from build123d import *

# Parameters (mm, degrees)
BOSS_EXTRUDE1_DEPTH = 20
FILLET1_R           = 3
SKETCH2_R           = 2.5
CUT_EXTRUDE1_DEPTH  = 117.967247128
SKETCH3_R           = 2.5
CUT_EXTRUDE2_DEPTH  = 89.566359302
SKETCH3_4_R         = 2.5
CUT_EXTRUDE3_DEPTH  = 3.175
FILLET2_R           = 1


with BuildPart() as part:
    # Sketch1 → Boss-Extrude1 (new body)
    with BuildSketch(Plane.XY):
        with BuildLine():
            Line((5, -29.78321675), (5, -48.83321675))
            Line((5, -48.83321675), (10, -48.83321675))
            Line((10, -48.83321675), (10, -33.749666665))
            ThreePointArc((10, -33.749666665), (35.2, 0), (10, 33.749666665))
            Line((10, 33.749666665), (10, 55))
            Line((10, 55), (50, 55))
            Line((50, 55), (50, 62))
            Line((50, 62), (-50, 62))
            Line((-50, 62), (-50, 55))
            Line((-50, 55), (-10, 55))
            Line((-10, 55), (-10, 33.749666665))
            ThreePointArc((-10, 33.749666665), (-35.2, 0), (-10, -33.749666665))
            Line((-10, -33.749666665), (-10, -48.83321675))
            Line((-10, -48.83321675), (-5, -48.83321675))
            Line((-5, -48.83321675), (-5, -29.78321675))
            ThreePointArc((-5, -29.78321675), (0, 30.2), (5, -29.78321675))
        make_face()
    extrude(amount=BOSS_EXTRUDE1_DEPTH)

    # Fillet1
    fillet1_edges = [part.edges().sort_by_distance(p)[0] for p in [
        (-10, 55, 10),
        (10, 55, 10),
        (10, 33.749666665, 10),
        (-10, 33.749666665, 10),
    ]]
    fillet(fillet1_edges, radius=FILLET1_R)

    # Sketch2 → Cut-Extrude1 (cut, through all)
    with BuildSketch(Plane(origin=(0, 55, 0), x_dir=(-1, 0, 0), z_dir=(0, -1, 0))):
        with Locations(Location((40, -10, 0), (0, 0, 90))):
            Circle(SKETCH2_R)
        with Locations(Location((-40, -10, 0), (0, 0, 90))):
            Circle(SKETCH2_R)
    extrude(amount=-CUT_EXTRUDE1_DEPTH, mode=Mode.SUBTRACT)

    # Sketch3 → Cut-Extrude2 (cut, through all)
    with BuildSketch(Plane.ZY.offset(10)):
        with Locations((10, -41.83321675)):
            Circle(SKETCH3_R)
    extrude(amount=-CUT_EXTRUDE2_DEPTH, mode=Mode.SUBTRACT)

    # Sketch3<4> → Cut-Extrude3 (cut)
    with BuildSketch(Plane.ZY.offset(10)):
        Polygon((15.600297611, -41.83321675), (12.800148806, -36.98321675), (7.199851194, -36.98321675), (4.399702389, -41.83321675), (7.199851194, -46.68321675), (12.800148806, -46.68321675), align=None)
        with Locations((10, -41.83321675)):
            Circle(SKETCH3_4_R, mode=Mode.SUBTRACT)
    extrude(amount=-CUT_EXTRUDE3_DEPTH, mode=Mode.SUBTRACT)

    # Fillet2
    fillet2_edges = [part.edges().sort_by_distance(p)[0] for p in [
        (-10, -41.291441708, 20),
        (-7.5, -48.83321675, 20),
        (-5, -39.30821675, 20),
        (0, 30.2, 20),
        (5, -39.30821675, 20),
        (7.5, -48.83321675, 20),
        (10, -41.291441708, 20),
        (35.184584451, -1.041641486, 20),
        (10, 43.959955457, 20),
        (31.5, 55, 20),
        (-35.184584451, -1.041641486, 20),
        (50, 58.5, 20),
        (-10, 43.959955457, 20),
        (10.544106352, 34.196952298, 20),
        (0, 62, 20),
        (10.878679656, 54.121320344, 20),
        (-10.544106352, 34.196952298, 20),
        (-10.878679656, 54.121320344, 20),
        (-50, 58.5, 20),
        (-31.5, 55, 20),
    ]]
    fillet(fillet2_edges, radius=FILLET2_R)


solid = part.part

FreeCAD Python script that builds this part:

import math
import FreeCAD as App
import Part
import Sketcher

V = App.Vector
Q = App.Units.Quantity


def edges_at(feature, points):
    """Names of the edges that pass closest to the given points."""
    edges = feature.Shape.Edges
    near = lambda p: min(range(len(edges)), key=lambda i: edges[i].distToShape(Part.Vertex(*p))[0])
    return sorted({f"Edge{near(p) + 1}" for p in points})

doc = App.newDocument("Part")
params = doc.addObject("Spreadsheet::Sheet", "Params")
for row, (alias, value) in enumerate([
    ("sketch1_radius", "35.2 mm"),
    ("sketch1_radius2", "30.2 mm"),
    ("sketch1_width", "5 mm"),
    ("sketch1_width2", "40 mm"),
    ("sketch1_width3", "100 mm"),
    ("pad1_length", "20 mm"),
    ("fillet_radius", "3 mm"),
    ("sketch2_diameter", "5 mm"),
    ("sketch3_diameter", "5 mm"),
    ("sketch4_diameter", "5 mm"),
    ("pocket3_length", "3.175 mm"),
    ("fillet2_radius", "1 mm"),
], start=1):
    params.set(f"A{row}", alias)
    params.set(f"B{row}", "=" + value)
    params.setAlias(f"B{row}", alias)

body = doc.addObject("PartDesign::Body", "Body")

sketch1 = body.newObject("Sketcher::SketchObject", "Sketch")
sketch1.AttachmentSupport = (doc.getObject("XY_Plane"), [""])
sketch1.MapMode = "FlatFace"
sketch1.addGeometry([
    Part.LineSegment(V(5, -30, 0), V(5, -49, 0)),
    Part.LineSegment(V(5, -49, 0), V(10, -49, 0)),
    Part.LineSegment(V(10, -49, 0), V(10, -34, 0)),
    Part.ArcOfCircle(Part.Circle(V(0, 0, 0), V(0, 0, 1), 35), math.radians(-73), math.radians(73)),
    Part.LineSegment(V(10, 34, 0), V(10, 55, 0)),
    Part.LineSegment(V(10, 55, 0), V(50, 55, 0)),
    Part.LineSegment(V(50, 55, 0), V(50, 62, 0)),
    Part.LineSegment(V(50, 62, 0), V(-50, 62, 0)),
    Part.LineSegment(V(-50, 62, 0), V(-50, 55, 0)),
    Part.LineSegment(V(-50, 55, 0), V(-10, 55, 0)),
    Part.LineSegment(V(-10, 55, 0), V(-10, 34, 0)),
    Part.ArcOfCircle(Part.Circle(V(0, 0, 0), V(0, 0, 1), 35), math.radians(107), math.radians(253)),
    Part.LineSegment(V(-10, -34, 0), V(-10, -49, 0)),
    Part.LineSegment(V(-10, -49, 0), V(-5, -49, 0)),
    Part.LineSegment(V(-5, -49, 0), V(-5, -30, 0)),
    Part.ArcOfCircle(Part.Circle(V(0, 0, 0), V(0, 0, 1), 30), math.radians(-80), math.radians(260)),
], False)
sketch1.addConstraint([
    Sketcher.Constraint("Coincident", 0, 2, 1, 1),
    Sketcher.Constraint("Coincident", 1, 2, 2, 1),
    Sketcher.Constraint("Coincident", 2, 2, 3, 1),
    Sketcher.Constraint("Coincident", 3, 2, 4, 1),
    Sketcher.Constraint("Coincident", 4, 2, 5, 1),
    Sketcher.Constraint("Coincident", 5, 2, 6, 1),
    Sketcher.Constraint("Coincident", 6, 2, 7, 1),
    Sketcher.Constraint("Coincident", 7, 2, 8, 1),
    Sketcher.Constraint("Coincident", 8, 2, 9, 1),
    Sketcher.Constraint("Coincident", 9, 2, 10, 1),
    Sketcher.Constraint("Coincident", 10, 2, 11, 1),
    Sketcher.Constraint("Coincident", 11, 2, 12, 1),
    Sketcher.Constraint("Coincident", 12, 2, 13, 1),
    Sketcher.Constraint("Coincident", 13, 2, 14, 1),
    Sketcher.Constraint("Coincident", 14, 2, 15, 2),
    Sketcher.Constraint("Coincident", 15, 1, 0, 1),
    Sketcher.Constraint("Vertical", 0),
    Sketcher.Constraint("Horizontal", 1),
    Sketcher.Constraint("Vertical", 2),
    Sketcher.Constraint("Vertical", 4),
    Sketcher.Constraint("Horizontal", 5),
    Sketcher.Constraint("Vertical", 6),
    Sketcher.Constraint("Horizontal", 7),
    Sketcher.Constraint("Vertical", 8),
    Sketcher.Constraint("Horizontal", 9),
    Sketcher.Constraint("Vertical", 10),
    Sketcher.Constraint("Vertical", 12),
    Sketcher.Constraint("Horizontal", 13),
    Sketcher.Constraint("Vertical", 14),
    Sketcher.Constraint("Coincident", 3, 3, -1, 1),
    Sketcher.Constraint("Coincident", 11, 3, -1, 1),
    Sketcher.Constraint("Coincident", 15, 3, -1, 1),
    Sketcher.Constraint("Equal", 3, 11),
    Sketcher.Constraint("Symmetric", 5, 2, 8, 2, -2),
    Sketcher.Constraint("Symmetric", 1, 2, 12, 2, -2),
    Sketcher.Constraint("Horizontal", 3, 2, 10, 2),
    Sketcher.Constraint("Horizontal", 14, 2, 15, 1),
    Sketcher.Constraint("Vertical", 2, 2, 3, 2),
    Sketcher.Constraint("Radius", 3, Q("35.2 mm")),
    Sketcher.Constraint("Radius", 15, Q("30.2 mm")),
    Sketcher.Constraint("DistanceX", 1, 1, 1, 2, Q("5 mm")),
    Sketcher.Constraint("DistanceX", 5, 1, 5, 2, Q("40 mm")),
    Sketcher.Constraint("DistanceX", 7, 2, 7, 1, Q("100 mm")),
    Sketcher.Constraint("DistanceY", 6, 1, 6, 2, Q("7 mm")),
    Sketcher.Constraint("DistanceY", -1, 1, 4, 2, Q("55 mm")),
    Sketcher.Constraint("DistanceY", 0, 2, 0, 1, Q("19.05 mm")),
])
sketch1.setExpression("Constraints[38]", "Params.sketch1_radius")
sketch1.setExpression("Constraints[39]", "Params.sketch1_radius2")
sketch1.setExpression("Constraints[40]", "Params.sketch1_width")
sketch1.setExpression("Constraints[41]", "Params.sketch1_width2")
sketch1.setExpression("Constraints[42]", "Params.sketch1_width3")
pad1 = body.newObject("PartDesign::Pad", "Pad")
pad1.Profile = sketch1
pad1.setExpression("Length", "Params.pad1_length")
doc.recompute()

fillet = body.newObject("PartDesign::Fillet", "Fillet")
fillet.Base = (pad1, edges_at(pad1, [
    (-10, 55, 10),
    (10, 55, 10),
    (10, 33.75, 10),
    (-10, 33.75, 10),
]))
fillet.setExpression("Radius", "Params.fillet_radius")

sketch2 = body.newObject("Sketcher::SketchObject", "Sketch001")
sketch2.AttachmentSupport = (doc.getObject("XZ_Plane"), [""])
sketch2.MapMode = "FlatFace"
sketch2.AttachmentOffset = App.Placement(V(0, 0, -55), App.Rotation())
sketch2.addGeometry([
    Part.Circle(V(-40, 10, 0), V(0, 0, 1), 2.5),
    Part.Circle(V(40, 10, 0), V(0, 0, 1), 2.5),
], False)
sketch2.addConstraint([
    Sketcher.Constraint("Equal", 0, 1),
    Sketcher.Constraint("Symmetric", 0, 3, 1, 3, -2),
    Sketcher.Constraint("Diameter", 0, Q("5 mm")),
    Sketcher.Constraint("DistanceX", 0, 3, -1, 1, Q("40 mm")),
    Sketcher.Constraint("DistanceY", -1, 1, 0, 3, Q("10 mm")),
])
sketch2.setExpression("Constraints[2]", "Params.sketch2_diameter")
pocket1 = body.newObject("PartDesign::Pocket", "Pocket")
pocket1.Profile = sketch2
pocket1.Type = "ThroughAll"

sketch3 = body.newObject("Sketcher::SketchObject", "Sketch002")
sketch3.AttachmentSupport = (doc.getObject("YZ_Plane"), [""])
sketch3.MapMode = "FlatFace"
sketch3.AttachmentOffset = App.Placement(V(0, 0, -10), App.Rotation())
sketch3.addGeometry(Part.Circle(V(-41.8, 10, 0), V(0, 0, 1), 2.5), False)
sketch3.addConstraint([
    Sketcher.Constraint("Diameter", 0, Q("5 mm")),
    Sketcher.Constraint("DistanceY", -1, 1, 0, 3, Q("10 mm")),
    Sketcher.Constraint("DistanceX", 0, 3, -1, 1, Q("41.833217 mm")),
])
sketch3.setExpression("Constraints[0]", "Params.sketch3_diameter")
pocket2 = body.newObject("PartDesign::Pocket", "Pocket001")
pocket2.Profile = sketch3
pocket2.Type = "ThroughAll"
pocket2.Reversed = True

sketch4 = body.newObject("Sketcher::SketchObject", "Sketch003")
sketch4.AttachmentSupport = (doc.getObject("YZ_Plane"), [""])
sketch4.MapMode = "FlatFace"
sketch4.AttachmentOffset = App.Placement(V(0, 0, -10), App.Rotation())
sketch4.addGeometry([
    Part.LineSegment(V(-41.8, 15.6, 0), V(-37, 12.8, 0)),
    Part.LineSegment(V(-37, 12.8, 0), V(-37, 7.2, 0)),
    Part.LineSegment(V(-37, 7.2, 0), V(-41.8, 4.4, 0)),
    Part.LineSegment(V(-41.8, 4.4, 0), V(-46.7, 7.2, 0)),
    Part.LineSegment(V(-46.7, 7.2, 0), V(-46.7, 12.8, 0)),
    Part.LineSegment(V(-46.7, 12.8, 0), V(-41.8, 15.6, 0)),
    Part.Circle(V(-41.8, 10, 0), V(0, 0, 1), 2.5),
], False)
sketch4.addConstraint([
    Sketcher.Constraint("Coincident", 0, 2, 1, 1),
    Sketcher.Constraint("Coincident", 1, 2, 2, 1),
    Sketcher.Constraint("Coincident", 2, 2, 3, 1),
    Sketcher.Constraint("Coincident", 3, 2, 4, 1),
    Sketcher.Constraint("Coincident", 4, 2, 5, 1),
    Sketcher.Constraint("Coincident", 5, 2, 0, 1),
    Sketcher.Constraint("Vertical", 1),
    Sketcher.Constraint("Vertical", 4),
    Sketcher.Constraint("Parallel", 0, 3),
    Sketcher.Constraint("Parallel", 2, 5),
    Sketcher.Constraint("Horizontal", 1, 2, 3, 2),
    Sketcher.Constraint("Horizontal", 0, 2, 4, 2),
    Sketcher.Constraint("Vertical", 6, 3, 2, 2),
    Sketcher.Constraint("Vertical", 2, 2, 5, 2),
    Sketcher.Constraint("Diameter", 6, Q("5 mm")),
    Sketcher.Constraint("Angle", 0, Q("-30 deg")),
    Sketcher.Constraint("DistanceY", -1, 1, 6, 3, Q("10 mm")),
    Sketcher.Constraint("DistanceX", 3, 2, 1, 2, Q("9.7 mm")),
    Sketcher.Constraint("DistanceY", 1, 2, 1, 1, Q("5.600298 mm")),
    Sketcher.Constraint("DistanceY", -1, 1, 0, 2, Q("12.800149 mm")),
    Sketcher.Constraint("DistanceX", 6, 3, -1, 1, Q("41.833217 mm")),
])
sketch4.setExpression("Constraints[14]", "Params.sketch4_diameter")
pocket3 = body.newObject("PartDesign::Pocket", "Pocket002")
pocket3.Profile = sketch4
pocket3.setExpression("Length", "Params.pocket3_length")
pocket3.Reversed = True
doc.recompute()

fillet2 = body.newObject("PartDesign::Fillet", "Fillet001")
fillet2.Base = (pocket3, edges_at(pocket3, [
    (-10, -41.291, 20),
    (-7.5, -48.833, 20),
    (-5, -39.308, 20),
    (0, 30.2, 20),
    (5, -39.308, 20),
    (7.5, -48.833, 20),
    (10, -41.291, 20),
    (35.185, -1.042, 20),
    (10, 43.96, 20),
    (31.5, 55, 20),
    (-35.185, -1.042, 20),
    (50, 58.5, 20),
    (-10, 43.96, 20),
    (10.544, 34.197, 20),
    (0, 62, 20),
    (10.879, 54.121, 20),
    (-10.544, 34.197, 20),
    (-10.879, 54.121, 20),
    (-50, 58.5, 20),
    (-31.5, 55, 20),
]))
fillet2.setExpression("Radius", "Params.fillet2_radius")

doc.recompute()
